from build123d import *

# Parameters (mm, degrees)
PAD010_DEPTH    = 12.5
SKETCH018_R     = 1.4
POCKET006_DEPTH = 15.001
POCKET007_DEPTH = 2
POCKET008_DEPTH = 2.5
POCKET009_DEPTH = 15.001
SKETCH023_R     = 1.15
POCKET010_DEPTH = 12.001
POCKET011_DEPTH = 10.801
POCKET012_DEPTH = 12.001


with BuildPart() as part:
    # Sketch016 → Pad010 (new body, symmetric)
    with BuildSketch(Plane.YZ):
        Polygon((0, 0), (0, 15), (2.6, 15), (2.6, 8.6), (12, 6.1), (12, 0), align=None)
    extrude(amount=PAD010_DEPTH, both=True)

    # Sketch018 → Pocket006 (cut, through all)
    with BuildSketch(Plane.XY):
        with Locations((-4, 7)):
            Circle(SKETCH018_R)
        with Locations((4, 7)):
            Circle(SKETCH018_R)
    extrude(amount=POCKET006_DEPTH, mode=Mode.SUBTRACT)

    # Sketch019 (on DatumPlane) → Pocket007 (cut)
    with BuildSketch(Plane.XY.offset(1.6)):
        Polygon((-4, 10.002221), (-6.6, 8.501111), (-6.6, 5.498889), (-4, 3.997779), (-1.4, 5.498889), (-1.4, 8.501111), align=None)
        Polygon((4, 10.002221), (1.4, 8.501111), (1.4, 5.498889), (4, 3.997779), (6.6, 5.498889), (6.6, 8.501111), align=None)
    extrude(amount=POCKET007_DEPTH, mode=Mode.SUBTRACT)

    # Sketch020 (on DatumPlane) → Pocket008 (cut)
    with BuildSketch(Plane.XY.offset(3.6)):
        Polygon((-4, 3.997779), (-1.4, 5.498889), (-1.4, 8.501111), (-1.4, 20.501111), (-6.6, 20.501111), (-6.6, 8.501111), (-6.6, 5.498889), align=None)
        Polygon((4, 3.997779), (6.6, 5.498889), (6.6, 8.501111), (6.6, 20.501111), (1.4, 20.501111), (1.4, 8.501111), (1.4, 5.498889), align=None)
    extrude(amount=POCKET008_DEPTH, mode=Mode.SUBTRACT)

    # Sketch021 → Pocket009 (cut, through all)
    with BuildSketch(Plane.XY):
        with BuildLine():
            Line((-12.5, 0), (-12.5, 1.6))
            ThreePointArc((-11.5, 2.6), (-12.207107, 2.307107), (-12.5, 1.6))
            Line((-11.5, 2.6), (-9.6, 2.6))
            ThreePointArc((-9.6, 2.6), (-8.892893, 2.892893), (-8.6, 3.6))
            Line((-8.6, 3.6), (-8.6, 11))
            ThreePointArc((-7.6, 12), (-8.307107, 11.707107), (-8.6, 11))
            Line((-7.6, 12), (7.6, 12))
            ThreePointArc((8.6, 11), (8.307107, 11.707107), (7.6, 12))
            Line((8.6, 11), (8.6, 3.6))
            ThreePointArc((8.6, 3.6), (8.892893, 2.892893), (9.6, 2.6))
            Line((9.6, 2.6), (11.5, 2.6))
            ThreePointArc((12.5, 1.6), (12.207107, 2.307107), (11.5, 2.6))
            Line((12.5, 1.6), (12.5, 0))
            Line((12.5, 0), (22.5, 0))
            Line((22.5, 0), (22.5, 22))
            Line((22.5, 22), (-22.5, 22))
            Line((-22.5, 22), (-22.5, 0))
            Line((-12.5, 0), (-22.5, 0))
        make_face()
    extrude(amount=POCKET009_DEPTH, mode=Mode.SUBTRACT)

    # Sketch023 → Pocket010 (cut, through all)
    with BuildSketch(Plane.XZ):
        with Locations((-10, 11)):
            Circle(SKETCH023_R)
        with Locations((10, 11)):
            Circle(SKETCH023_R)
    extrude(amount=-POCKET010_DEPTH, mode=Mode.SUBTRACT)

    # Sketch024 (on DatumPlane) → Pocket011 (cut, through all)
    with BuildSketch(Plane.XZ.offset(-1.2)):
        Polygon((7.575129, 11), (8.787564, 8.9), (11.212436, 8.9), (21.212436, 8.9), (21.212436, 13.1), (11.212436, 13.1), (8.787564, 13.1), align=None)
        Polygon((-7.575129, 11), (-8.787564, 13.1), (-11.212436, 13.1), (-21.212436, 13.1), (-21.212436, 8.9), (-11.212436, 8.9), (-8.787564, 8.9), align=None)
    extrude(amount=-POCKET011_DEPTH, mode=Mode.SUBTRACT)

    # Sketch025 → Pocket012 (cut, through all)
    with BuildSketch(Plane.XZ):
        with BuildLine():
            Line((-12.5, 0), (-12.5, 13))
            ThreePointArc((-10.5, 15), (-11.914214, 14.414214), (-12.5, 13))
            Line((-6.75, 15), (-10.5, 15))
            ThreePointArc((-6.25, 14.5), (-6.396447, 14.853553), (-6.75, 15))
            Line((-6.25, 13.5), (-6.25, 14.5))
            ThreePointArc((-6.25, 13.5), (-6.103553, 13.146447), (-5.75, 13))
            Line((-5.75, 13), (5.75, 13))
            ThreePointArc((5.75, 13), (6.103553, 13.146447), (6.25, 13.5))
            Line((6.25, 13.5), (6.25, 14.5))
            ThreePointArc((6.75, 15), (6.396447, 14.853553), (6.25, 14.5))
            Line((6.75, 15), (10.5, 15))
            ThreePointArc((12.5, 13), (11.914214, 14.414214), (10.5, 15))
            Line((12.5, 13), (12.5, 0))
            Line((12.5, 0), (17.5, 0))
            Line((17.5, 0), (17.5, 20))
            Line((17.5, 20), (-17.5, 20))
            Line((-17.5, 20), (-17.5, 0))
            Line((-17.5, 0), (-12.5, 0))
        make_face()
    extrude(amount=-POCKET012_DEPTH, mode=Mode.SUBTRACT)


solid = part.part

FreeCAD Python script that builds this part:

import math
import FreeCAD as App
import Part
import Sketcher
Q = App.Units.Quantity


def add_polygon(sketch, points):
    """Adds a closed chain of lines whose ends are joined by coincident constraints."""
    first, n = sketch.GeometryCount, len(points)
    for a, b in zip(points, points[1:] + points[:1]):
        sketch.addGeometry(Part.LineSegment(App.Vector(*a, 0), App.Vector(*b, 0)), False)
    for i in range(n):
        sketch.addConstraint(Sketcher.Constraint("Coincident", first + i, 2, first + (i + 1) % n, 1))

doc = App.newDocument("Part")
body = doc.addObject("PartDesign::Body", "Body")

# Sketch on YZ plane
sketch1 = doc.addObject("Sketcher::SketchObject", "Sketch")
body.addObject(sketch1)
sketch1.AttachmentSupport = (doc.YZ_Plane, [""])
sketch1.MapMode = "FlatFace"
add_polygon(sketch1, [(0, 15), (0, 0), (12, 0), (12, 6.1), (2.6, 8.6), (2.6, 15)])  # lines 0-5
sketch1.addConstraint(Sketcher.Constraint("Vertical", 0))
sketch1.addConstraint(Sketcher.Constraint("Horizontal", 1))
sketch1.addConstraint(Sketcher.Constraint("Vertical", 2))
sketch1.addConstraint(Sketcher.Constraint("Vertical", 4))
sketch1.addConstraint(Sketcher.Constraint("Horizontal", 5))
sketch1.addConstraint(Sketcher.Constraint("Coincident", 0, 2, -1, 1))
sketch1.addConstraint(Sketcher.Constraint("DistanceX", 1, 1, 1, 2, 12.0))
sketch1.addConstraint(Sketcher.Constraint("DistanceY", 0, 2, 0, 1, 15.0))
sketch1.addConstraint(Sketcher.Constraint("DistanceX", 5, 2, 5, 1, 2.6))
sketch1.addConstraint(Sketcher.Constraint("DistanceY", 2, 1, 2, 2, 6.1))
sketch1.addConstraint(Sketcher.Constraint("DistanceY", 4, 1, 4, 2, 6.4))
pad1 = doc.addObject("PartDesign::Pad", "Pad")
body.addObject(pad1)
pad1.Profile = sketch1
pad1.Length = 25
pad1.Midplane = True

# Sketch on XY plane
sketch2 = doc.addObject("Sketcher::SketchObject", "Sketch001")
body.addObject(sketch2)
sketch2.AttachmentSupport = (doc.XY_Plane, [""])
sketch2.MapMode = "FlatFace"
sketch2.addGeometry(Part.Circle(App.Vector(-4, 7, 0), App.Vector(0, 0, 1), 1.4), False)
sketch2.addGeometry(Part.Circle(App.Vector(4, 7, 0), App.Vector(0, 0, 1), 1.4), False)
sketch2.addConstraint(Sketcher.Constraint("Equal", 0, 1))
sketch2.addConstraint(Sketcher.Constraint("Symmetric", 0, 3, 1, 3, -2))
sketch2.addConstraint(Sketcher.Constraint("Diameter", 0, 2.8))
sketch2.addConstraint(Sketcher.Constraint("DistanceX", 0, 3, -1, 1, 4.0))
sketch2.addConstraint(Sketcher.Constraint("DistanceY", -1, 1, 0, 3, 7.0))
pocket1 = doc.addObject("PartDesign::Pocket", "Pocket")
body.addObject(pocket1)
pocket1.Profile = sketch2
pocket1.Type = "ThroughAll"
pocket1.Reversed = True

# Sketch on XY plane
sketch3 = doc.addObject("Sketcher::SketchObject", "Sketch002")
body.addObject(sketch3)
sketch3.AttachmentSupport = (doc.XY_Plane, [""])
sketch3.MapMode = "FlatFace"
sketch3.AttachmentOffset = App.Placement(App.Vector(0, 0, 1.6), App.Rotation())
add_polygon(sketch3, [(-4, 10), (-6.6, 8.5), (-6.6, 5.5), (-4, 4), (-1.4, 5.5), (-1.4, 8.5)])  # lines 0-5
add_polygon(sketch3, [(4, 10), (1.4, 8.5), (1.4, 5.5), (4, 4), (6.6, 5.5), (6.6, 8.5)])  # lines 6-11
sketch3.addConstraint(Sketcher.Constraint("Vertical", 1))
sketch3.addConstraint(Sketcher.Constraint("Vertical", 4))
sketch3.addConstraint(Sketcher.Constraint("Vertical", 7))
sketch3.addConstraint(Sketcher.Constraint("Vertical", 10))
sketch3.addConstraint(Sketcher.Constraint("Symmetric", 4, 2, 6, 2, -2))
sketch3.addConstraint(Sketcher.Constraint("Symmetric", 2, 2, 8, 2, -2))
sketch3.addConstraint(Sketcher.Constraint("Symmetric", 1, 2, 9, 2, -2))
sketch3.addConstraint(Sketcher.Constraint("Symmetric", 5, 2, 11, 2, -2))
sketch3.addConstraint(Sketcher.Constraint("Parallel", 0, 3))
sketch3.addConstraint(Sketcher.Constraint("Parallel", 2, 5))
sketch3.addConstraint(Sketcher.Constraint("Parallel", 3, 6))
sketch3.addConstraint(Sketcher.Constraint("Parallel", 5, 8))
sketch3.addConstraint(Sketcher.Constraint("Parallel", 8, 11))
sketch3.addConstraint(Sketcher.Constraint("Horizontal", 1, 2, 3, 2))
sketch3.addConstraint(Sketcher.Constraint("Horizontal", 0, 2, 4, 2))
sketch3.addConstraint(Sketcher.Constraint("Angle", 0, Q("-150.000012 deg")))
sketch3.addConstraint(Sketcher.Constraint("DistanceX", 2, 2, -1, 1, 4.0))
sketch3.addConstraint(Sketcher.Constraint("DistanceX", 0, 2, -1, 1, 6.6))
sketch3.addConstraint(Sketcher.Constraint("DistanceY", 1, 2, 1, 1, 3.002222))
sketch3.addConstraint(Sketcher.Constraint("DistanceY", -1, 1, 0, 2, 8.501111))
pocket2 = doc.addObject("PartDesign::Pocket", "Pocket001")
body.addObject(pocket2)
pocket2.Profile = sketch3
pocket2.Length = 2
pocket2.Reversed = True

# Sketch on XY plane
sketch4 = doc.addObject("Sketcher::SketchObject", "Sketch003")
body.addObject(sketch4)
sketch4.AttachmentSupport = (doc.XY_Plane, [""])
sketch4.MapMode = "FlatFace"
sketch4.AttachmentOffset = App.Placement(App.Vector(0, 0, 3.6), App.Rotation())
add_polygon(sketch4, [(-4, 4), (-1.4, 5.5), (-1.4, 20.5), (-6.6, 20.5), (-6.6, 5.5)])  # lines 0-4
add_polygon(sketch4, [(4, 4), (6.6, 5.5), (6.6, 20.5), (1.4, 20.5), (1.4, 5.5)])  # lines 5-9
sketch4.addConstraint(Sketcher.Constraint("Vertical", 1))
sketch4.addConstraint(Sketcher.Constraint("Horizontal", 2))
sketch4.addConstraint(Sketcher.Constraint("Vertical", 3))
sketch4.addConstraint(Sketcher.Constraint("Vertical", 6))
sketch4.addConstraint(Sketcher.Constraint("Horizontal", 7))
sketch4.addConstraint(Sketcher.Constraint("Vertical", 8))
sketch4.addConstraint(Sketcher.Constraint("Symmetric", 3, 2, 5, 2, -2))
sketch4.addConstraint(Sketcher.Constraint("Symmetric", 1, 2, 7, 2, -2))
sketch4.addConstraint(Sketcher.Constraint("Symmetric", 4, 2, 9, 2, -2))
sketch4.addConstraint(Sketcher.Constraint("Parallel", 0, 5))
sketch4.addConstraint(Sketcher.Constraint("Parallel", 4, 9))
sketch4.addConstraint(Sketcher.Constraint("Horizontal", 0, 2, 3, 2))
sketch4.addConstraint(Sketcher.Constraint("Angle", 0, Q("29.999988 deg")))
sketch4.addConstraint(Sketcher.Constraint("DistanceX", 2, 2, 2, 1, 5.2))
sketch4.addConstraint(Sketcher.Constraint("DistanceX", 4, 2, -1, 1, 4.0))
sketch4.addConstraint(Sketcher.Constraint("DistanceY", 1, 1, 1, 2, 15.002222))
sketch4.addConstraint(Sketcher.Constraint("DistanceY", -1, 1, 0, 2, 5.498889))
pocket3 = doc.addObject("PartDesign::Pocket", "Pocket002")
body.addObject(pocket3)
pocket3.Profile = sketch4
pocket3.Length = 2.5
pocket3.Reversed = True

# Sketch on XY plane
sketch5 = doc.addObject("Sketcher::SketchObject", "Sketch004")
body.addObject(sketch5)
sketch5.AttachmentSupport = (doc.XY_Plane, [""])
sketch5.MapMode = "FlatFace"
sketch5.addGeometry(Part.LineSegment(App.Vector(-12.5, 0, 0), App.Vector(-12.5, 1.6, 0)), False)
sketch5.addGeometry(Part.ArcOfCircle(Part.Circle(App.Vector(-11.5, 1.6, 0), App.Vector(0, 0, 1), 1), math.radians(90), math.radians(180)), False)
sketch5.addGeometry(Part.LineSegment(App.Vector(-11.5, 2.6, 0), App.Vector(-9.6, 2.6, 0)), False)
sketch5.addGeometry(Part.ArcOfCircle(Part.Circle(App.Vector(-9.6, 3.6, 0), App.Vector(0, 0, 1), 1), math.radians(-90), math.radians(0)), False)
sketch5.addGeometry(Part.LineSegment(App.Vector(-8.6, 3.6, 0), App.Vector(-8.6, 11, 0)), False)
sketch5.addGeometry(Part.ArcOfCircle(Part.Circle(App.Vector(-7.6, 11, 0), App.Vector(0, 0, 1), 1), math.radians(90), math.radians(180)), False)
sketch5.addGeometry(Part.LineSegment(App.Vector(-7.6, 12, 0), App.Vector(7.6, 12, 0)), False)
sketch5.addGeometry(Part.ArcOfCircle(Part.Circle(App.Vector(7.6, 11, 0), App.Vector(0, 0, 1), 1), math.radians(0), math.radians(90)), False)
sketch5.addGeometry(Part.LineSegment(App.Vector(8.6, 11, 0), App.Vector(8.6, 3.6, 0)), False)
sketch5.addGeometry(Part.ArcOfCircle(Part.Circle(App.Vector(9.6, 3.6, 0), App.Vector(0, 0, 1), 1), math.radians(180), math.radians(270)), False)
sketch5.addGeometry(Part.LineSegment(App.Vector(9.6, 2.6, 0), App.Vector(11.5, 2.6, 0)), False)
sketch5.addGeometry(Part.ArcOfCircle(Part.Circle(App.Vector(11.5, 1.6, 0), App.Vector(0, 0, 1), 1), math.radians(0), math.radians(90)), False)
sketch5.addGeometry(Part.LineSegment(App.Vector(12.5, 1.6, 0), App.Vector(12.5, 0, 0)), False)
sketch5.addGeometry(Part.LineSegment(App.Vector(12.5, 0, 0), App.Vector(22.5, 0, 0)), False)
sketch5.addGeometry(Part.LineSegment(App.Vector(22.5, 0, 0), App.Vector(22.5, 22, 0)), False)
sketch5.addGeometry(Part.LineSegment(App.Vector(22.5, 22, 0), App.Vector(-22.5, 22, 0)), False)
sketch5.addGeometry(Part.LineSegment(App.Vector(-22.5, 22, 0), App.Vector(-22.5, 0, 0)), False)
sketch5.addGeometry(Part.LineSegment(App.Vector(-22.5, 0, 0), App.Vector(-12.5, 0, 0)), False)
sketch5.addConstraint(Sketcher.Constraint("Tangent", 0, 2, 1, 2))
sketch5.addConstraint(Sketcher.Constraint("Tangent", 1, 1, 2, 1))
sketch5.addConstraint(Sketcher.Constraint("Tangent", 2, 2, 3, 1))
sketch5.addConstraint(Sketcher.Constraint("Tangent", 3, 2, 4, 1))
sketch5.addConstraint(Sketcher.Constraint("Tangent", 4, 2, 5, 2))
sketch5.addConstraint(Sketcher.Constraint("Tangent", 5, 1, 6, 1))
sketch5.addConstraint(Sketcher.Constraint("Tangent", 6, 2, 7, 2))
sketch5.addConstraint(Sketcher.Constraint("Tangent", 7, 1, 8, 1))
sketch5.addConstraint(Sketcher.Constraint("Tangent", 8, 2, 9, 1))
sketch5.addConstraint(Sketcher.Constraint("Tangent", 9, 2, 10, 1))
sketch5.addConstraint(Sketcher.Constraint("Tangent", 10, 2, 11, 2))
sketch5.addConstraint(Sketcher.Constraint("Tangent", 11, 1, 12, 1))
sketch5.addConstraint(Sketcher.Constraint("Coincident", 12, 2, 13, 1))
sketch5.addConstraint(Sketcher.Constraint("Coincident", 13, 2, 14, 1))
sketch5.addConstraint(Sketcher.Constraint("Coincident", 14, 2, 15, 1))
sketch5.addConstraint(Sketcher.Constraint("Coincident", 15, 2, 16, 1))
sketch5.addConstraint(Sketcher.Constraint("Coincident", 16, 2, 17, 1))
sketch5.addConstraint(Sketcher.Constraint("Coincident", 17, 2, 0, 1))
sketch5.addConstraint(Sketcher.Constraint("Vertical", 0))
sketch5.addConstraint(Sketcher.Constraint("Horizontal", 2))
sketch5.addConstraint(Sketcher.Constraint("Vertical", 4))
sketch5.addConstraint(Sketcher.Constraint("Horizontal", 6))
sketch5.addConstraint(Sketcher.Constraint("Vertical", 8))
sketch5.addConstraint(Sketcher.Constraint("Horizontal", 10))
sketch5.addConstraint(Sketcher.Constraint("Vertical", 12))
sketch5.addConstraint(Sketcher.Constraint("Horizontal", 13))
sketch5.addConstraint(Sketcher.Constraint("Vertical", 14))
sketch5.addConstraint(Sketcher.Constraint("Horizontal", 15))
sketch5.addConstraint(Sketcher.Constraint("Vertical", 16))
sketch5.addConstraint(Sketcher.Constraint("Horizontal", 17))
sketch5.addConstraint(Sketcher.Constraint("Equal", 1, 3))
sketch5.addConstraint(Sketcher.Constraint("Equal", 3, 5))
sketch5.addConstraint(Sketcher.Constraint("Equal", 5, 7))
sketch5.addConstraint(Sketcher.Constraint("Equal", 7, 9))
sketch5.addConstraint(Sketcher.Constraint("Equal", 9, 11))
sketch5.addConstraint(Sketcher.Constraint("Symmetric", 13, 2, 16, 2, -1, 1))
sketch5.addConstraint(Sketcher.Constraint("Symmetric", 3, 3, 9, 3, -2))
sketch5.addConstraint(Sketcher.Constraint("Symmetric", 12, 2, 17, 2, -2))
sketch5.addConstraint(Sketcher.Constraint("Radius", 1, 0.999999))
sketch5.addConstraint(Sketcher.Constraint("DistanceX", 13, 1, 13, 2, 10.0))
sketch5.addConstraint(Sketcher.Constraint("DistanceX", 15, 2, 15, 1, 45.0))
sketch5.addConstraint(Sketcher.Constraint("DistanceY", 14, 1, 14, 2, 22.0))
sketch5.addConstraint(Sketcher.Constraint("DistanceX", 2, 1, 2, 2, 1.9))
sketch5.addConstraint(Sketcher.Constraint("DistanceY", 0, 1, 0, 2, 1.6))
sketch5.addConstraint(Sketcher.Constraint("DistanceY", 4, 1, 4, 2, 7.4))
pocket4 = doc.addObject("PartDesign::Pocket", "Pocket003")
body.addObject(pocket4)
pocket4.Profile = sketch5
pocket4.Type = "ThroughAll"
pocket4.Reversed = True

# Sketch on XZ plane
sketch6 = doc.addObject("Sketcher::SketchObject", "Sketch005")
body.addObject(sketch6)
sketch6.AttachmentSupport = (doc.XZ_Plane, [""])
sketch6.MapMode = "FlatFace"
sketch6.addGeometry(Part.Circle(App.Vector(-10, 11, 0), App.Vector(0, 0, 1), 1.1), False)
sketch6.addGeometry(Part.Circle(App.Vector(10, 11, 0), App.Vector(0, 0, 1), 1.1), False)
sketch6.addConstraint(Sketcher.Constraint("Equal", 0, 1))
sketch6.addConstraint(Sketcher.Constraint("Symmetric", 0, 3, 1, 3, -2))
sketch6.addConstraint(Sketcher.Constraint("Diameter", 0, 2.3))
sketch6.addConstraint(Sketcher.Constraint("DistanceX", 0, 3, -1, 1, 10.0))
sketch6.addConstraint(Sketcher.Constraint("DistanceY", -1, 1, 0, 3, 11.0))
pocket5 = doc.addObject("PartDesign::Pocket", "Pocket004")
body.addObject(pocket5)
pocket5.Profile = sketch6
pocket5.Type = "ThroughAll"

# Sketch on XZ plane
sketch7 = doc.addObject("Sketcher::SketchObject", "Sketch006")
body.addObject(sketch7)
sketch7.AttachmentSupport = (doc.XZ_Plane, [""])
sketch7.MapMode = "FlatFace"
sketch7.AttachmentOffset = App.Placement(App.Vector(0, 0, -1.2), App.Rotation())
add_polygon(sketch7, [(7.6, 11), (8.8, 8.9), (21.2, 8.9), (21.2, 13.1), (8.8, 13.1)])  # lines 0-4
add_polygon(sketch7, [(-7.6, 11), (-8.8, 13.1), (-21.2, 13.1), (-21.2, 8.9), (-8.8, 8.9)])  # lines 5-9
sketch7.addConstraint(Sketcher.Constraint("Horizontal", 1))
sketch7.addConstraint(Sketcher.Constraint("Vertical", 2))
sketch7.addConstraint(Sketcher.Constraint("Horizontal", 3))
sketch7.addConstraint(Sketcher.Constraint("Horizontal", 6))
sketch7.addConstraint(Sketcher.Constraint("Vertical", 7))
sketch7.addConstraint(Sketcher.Constraint("Horizontal", 8))
sketch7.addConstraint(Sketcher.Constraint("Symmetric", 3, 2, 5, 2, -2))
sketch7.addConstraint(Sketcher.Constraint("Symmetric", 1, 2, 7, 2, -2))
sketch7.addConstraint(Sketcher.Constraint("Symmetric", 4, 2, 9, 2, -2))
sketch7.addConstraint(Sketcher.Constraint("Parallel", 0, 5))
sketch7.addConstraint(Sketcher.Constraint("Parallel", 4, 9))
sketch7.addConstraint(Sketcher.Constraint("Vertical", 0, 2, 3, 2))
sketch7.addConstraint(Sketcher.Constraint("Angle", 0, Q("-60.000012 deg")))
sketch7.addConstraint(Sketcher.Constraint("DistanceY", 2, 1, 2, 2, 4.2))
sketch7.addConstraint(Sketcher.Constraint("DistanceY", -1, 1, 4, 2, 11.0))
sketch7.addConstraint(Sketcher.Constraint("DistanceX", 5, 2, 2, 2, 30.0))
sketch7.addConstraint(Sketcher.Constraint("DistanceX", 1, 1, 1, 2, 12.424872))
pocket6 = doc.addObject("PartDesign::Pocket", "Pocket005")
body.addObject(pocket6)
pocket6.Profile = sketch7
pocket6.Type = "ThroughAll"

# Sketch on XZ plane
sketch8 = doc.addObject("Sketcher::SketchObject", "Sketch007")
body.addObject(sketch8)
sketch8.AttachmentSupport = (doc.XZ_Plane, [""])
sketch8.MapMode = "FlatFace"
sketch8.addGeometry(Part.LineSegment(App.Vector(-12.5, 0, 0), App.Vector(-12.5, 13, 0)), False)
sketch8.addGeometry(Part.ArcOfCircle(Part.Circle(App.Vector(-10.5, 13, 0), App.Vector(0, 0, 1), 2), math.radians(90), math.radians(180)), False)
sketch8.addGeometry(Part.LineSegment(App.Vector(-10.5, 15, 0), App.Vector(-6.8, 15, 0)), False)
sketch8.addGeometry(Part.ArcOfCircle(Part.Circle(App.Vector(-6.8, 14.5, 0), App.Vector(0, 0, 1), 0.5), math.radians(0), math.radians(90)), False)
sketch8.addGeometry(Part.LineSegment(App.Vector(-6.2, 14.5, 0), App.Vector(-6.2, 13.5, 0)), False)
sketch8.addGeometry(Part.ArcOfCircle(Part.Circle(App.Vector(-5.7, 13.5, 0), App.Vector(0, 0, 1), 0.5), math.radians(-180), math.radians(-90)), False)
sketch8.addGeometry(Part.LineSegment(App.Vector(-5.8, 13, 0), App.Vector(5.8, 13, 0)), False)
sketch8.addGeometry(Part.ArcOfCircle(Part.Circle(App.Vector(5.7, 13.5, 0), App.Vector(0, 0, 1), 0.5), math.radians(-90), math.radians(0)), False)
sketch8.addGeometry(Part.LineSegment(App.Vector(6.2, 13.5, 0), App.Vector(6.2, 14.5, 0)), False)
sketch8.addGeometry(Part.ArcOfCircle(Part.Circle(App.Vector(6.8, 14.5, 0), App.Vector(0, 0, 1), 0.5), math.radians(90), math.radians(180)), False)
sketch8.addGeometry(Part.LineSegment(App.Vector(6.8, 15, 0), App.Vector(10.5, 15, 0)), False)
sketch8.addGeometry(Part.ArcOfCircle(Part.Circle(App.Vector(10.5, 13, 0), App.Vector(0, 0, 1), 2), math.radians(0), math.radians(90)), False)
sketch8.addGeometry(Part.LineSegment(App.Vector(12.5, 13, 0), App.Vector(12.5, 0, 0)), False)
sketch8.addGeometry(Part.LineSegment(App.Vector(12.5, 0, 0), App.Vector(17.5, 0, 0)), False)
sketch8.addGeometry(Part.LineSegment(App.Vector(17.5, 0, 0), App.Vector(17.5, 20, 0)), False)
sketch8.addGeometry(Part.LineSegment(App.Vector(17.5, 20, 0), App.Vector(-17.5, 20, 0)), False)
sketch8.addGeometry(Part.LineSegment(App.Vector(-17.5, 20, 0), App.Vector(-17.5, 0, 0)), False)
sketch8.addGeometry(Part.LineSegment(App.Vector(-17.5, 0, 0), App.Vector(-12.5, 0, 0)), False)
sketch8.addConstraint(Sketcher.Constraint("Tangent", 0, 2, 1, 2))
sketch8.addConstraint(Sketcher.Constraint("Tangent", 1, 1, 2, 1))
sketch8.addConstraint(Sketcher.Constraint("Coincident", 2, 2, 3, 2))
sketch8.addConstraint(Sketcher.Constraint("Coincident", 3, 1, 4, 1))
sketch8.addConstraint(Sketcher.Constraint("Coincident", 4, 2, 5, 1))
sketch8.addConstraint(Sketcher.Constraint("Coincident", 5, 2, 6, 1))
sketch8.addConstraint(Sketcher.Constraint("Coincident", 6, 2, 7, 1))
sketch8.addConstraint(Sketcher.Constraint("Coincident", 7, 2, 8, 1))
sketch8.addConstraint(Sketcher.Constraint("Coincident", 8, 2, 9, 2))
sketch8.addConstraint(Sketcher.Constraint("Coincident", 9, 1, 10, 1))
sketch8.addConstraint(Sketcher.Constraint("Tangent", 10, 2, 11, 2))
sketch8.addConstraint(Sketcher.Constraint("Tangent", 11, 1, 12, 1))
sketch8.addConstraint(Sketcher.Constraint("Coincident", 12, 2, 13, 1))
sketch8.addConstraint(Sketcher.Constraint("Coincident", 13, 2, 14, 1))
sketch8.addConstraint(Sketcher.Constraint("Coincident", 14, 2, 15, 1))
sketch8.addConstraint(Sketcher.Constraint("Coincident", 15, 2, 16, 1))
sketch8.addConstraint(Sketcher.Constraint("Coincident", 16, 2, 17, 1))
sketch8.addConstraint(Sketcher.Constraint("Coincident", 17, 2, 0, 1))
sketch8.addConstraint(Sketcher.Constraint("Vertical", 0))
sketch8.addConstraint(Sketcher.Constraint("Horizontal", 2))
sketch8.addConstraint(Sketcher.Constraint("Vertical", 4))
sketch8.addConstraint(Sketcher.Constraint("Horizontal", 6))
sketch8.addConstraint(Sketcher.Constraint("Vertical", 8))
sketch8.addConstraint(Sketcher.Constraint("Horizontal", 10))
sketch8.addConstraint(Sketcher.Constraint("Vertical", 12))
sketch8.addConstraint(Sketcher.Constraint("Horizontal", 13))
sketch8.addConstraint(Sketcher.Constraint("Vertical", 14))
sketch8.addConstraint(Sketcher.Constraint("Horizontal", 15))
sketch8.addConstraint(Sketcher.Constraint("Vertical", 16))
sketch8.addConstraint(Sketcher.Constraint("Horizontal", 17))
sketch8.addConstraint(Sketcher.Constraint("Equal", 3, 5))
sketch8.addConstraint(Sketcher.Constraint("Equal", 5, 7))
sketch8.addConstraint(Sketcher.Constraint("Equal", 7, 9))
sketch8.addConstraint(Sketcher.Constraint("Equal", 1, 11))
sketch8.addConstraint(Sketcher.Constraint("Symmetric", 13, 2, 16, 2, -1, 1))
sketch8.addConstraint(Sketcher.Constraint("Symmetric", 3, 3, 9, 3, -2))
sketch8.addConstraint(Sketcher.Constraint("Symmetric", 12, 2, 17, 2, -2))
sketch8.addConstraint(Sketcher.Constraint("Horizontal", 9, 3, 3, 1))
sketch8.addConstraint(Sketcher.Constraint("Horizontal", 7, 3, 4, 2))
sketch8.addConstraint(Sketcher.Constraint("Horizontal", 0, 2, 5, 2))
sketch8.addConstraint(Sketcher.Constraint("Horizontal", 4, 2, 7, 2))
sketch8.addConstraint(Sketcher.Constraint("Horizontal", 3, 1, 8, 2))
sketch8.addConstraint(Sketcher.Constraint("Vertical", 3, 3, 2, 2))
sketch8.addConstraint(Sketcher.Constraint("Vertical", 7, 3, 6, 2))
sketch8.addConstraint(Sketcher.Constraint("Equal", 2, 10))
sketch8.addConstraint(Sketcher.Constraint("Radius", 1, 1.999999))
sketch8.addConstraint(Sketcher.Constraint("Radius", 3, 0.500001))
sketch8.addConstraint(Sketcher.Constraint("DistanceX", 13, 1, 13, 2, 5.0))
sketch8.addConstraint(Sketcher.Constraint("DistanceX", 15, 2, 15, 1, 35.0))
sketch8.addConstraint(Sketcher.Constraint("DistanceY", 0, 1, 0, 2, 13.0))
sketch8.addConstraint(Sketcher.Constraint("DistanceY", 14, 1, 14, 2, 20.0))
sketch8.addConstraint(Sketcher.Constraint("DistanceX", 6, 1, 6, 2, 11.5))
sketch8.addConstraint(Sketcher.Constraint("DistanceX", 3, 3, 5, 2, 1.000001))
pocket7 = doc.addObject("PartDesign::Pocket", "Pocket006")
body.addObject(pocket7)
pocket7.Profile = sketch8
pocket7.Type = "ThroughAll"

doc.recompute()
